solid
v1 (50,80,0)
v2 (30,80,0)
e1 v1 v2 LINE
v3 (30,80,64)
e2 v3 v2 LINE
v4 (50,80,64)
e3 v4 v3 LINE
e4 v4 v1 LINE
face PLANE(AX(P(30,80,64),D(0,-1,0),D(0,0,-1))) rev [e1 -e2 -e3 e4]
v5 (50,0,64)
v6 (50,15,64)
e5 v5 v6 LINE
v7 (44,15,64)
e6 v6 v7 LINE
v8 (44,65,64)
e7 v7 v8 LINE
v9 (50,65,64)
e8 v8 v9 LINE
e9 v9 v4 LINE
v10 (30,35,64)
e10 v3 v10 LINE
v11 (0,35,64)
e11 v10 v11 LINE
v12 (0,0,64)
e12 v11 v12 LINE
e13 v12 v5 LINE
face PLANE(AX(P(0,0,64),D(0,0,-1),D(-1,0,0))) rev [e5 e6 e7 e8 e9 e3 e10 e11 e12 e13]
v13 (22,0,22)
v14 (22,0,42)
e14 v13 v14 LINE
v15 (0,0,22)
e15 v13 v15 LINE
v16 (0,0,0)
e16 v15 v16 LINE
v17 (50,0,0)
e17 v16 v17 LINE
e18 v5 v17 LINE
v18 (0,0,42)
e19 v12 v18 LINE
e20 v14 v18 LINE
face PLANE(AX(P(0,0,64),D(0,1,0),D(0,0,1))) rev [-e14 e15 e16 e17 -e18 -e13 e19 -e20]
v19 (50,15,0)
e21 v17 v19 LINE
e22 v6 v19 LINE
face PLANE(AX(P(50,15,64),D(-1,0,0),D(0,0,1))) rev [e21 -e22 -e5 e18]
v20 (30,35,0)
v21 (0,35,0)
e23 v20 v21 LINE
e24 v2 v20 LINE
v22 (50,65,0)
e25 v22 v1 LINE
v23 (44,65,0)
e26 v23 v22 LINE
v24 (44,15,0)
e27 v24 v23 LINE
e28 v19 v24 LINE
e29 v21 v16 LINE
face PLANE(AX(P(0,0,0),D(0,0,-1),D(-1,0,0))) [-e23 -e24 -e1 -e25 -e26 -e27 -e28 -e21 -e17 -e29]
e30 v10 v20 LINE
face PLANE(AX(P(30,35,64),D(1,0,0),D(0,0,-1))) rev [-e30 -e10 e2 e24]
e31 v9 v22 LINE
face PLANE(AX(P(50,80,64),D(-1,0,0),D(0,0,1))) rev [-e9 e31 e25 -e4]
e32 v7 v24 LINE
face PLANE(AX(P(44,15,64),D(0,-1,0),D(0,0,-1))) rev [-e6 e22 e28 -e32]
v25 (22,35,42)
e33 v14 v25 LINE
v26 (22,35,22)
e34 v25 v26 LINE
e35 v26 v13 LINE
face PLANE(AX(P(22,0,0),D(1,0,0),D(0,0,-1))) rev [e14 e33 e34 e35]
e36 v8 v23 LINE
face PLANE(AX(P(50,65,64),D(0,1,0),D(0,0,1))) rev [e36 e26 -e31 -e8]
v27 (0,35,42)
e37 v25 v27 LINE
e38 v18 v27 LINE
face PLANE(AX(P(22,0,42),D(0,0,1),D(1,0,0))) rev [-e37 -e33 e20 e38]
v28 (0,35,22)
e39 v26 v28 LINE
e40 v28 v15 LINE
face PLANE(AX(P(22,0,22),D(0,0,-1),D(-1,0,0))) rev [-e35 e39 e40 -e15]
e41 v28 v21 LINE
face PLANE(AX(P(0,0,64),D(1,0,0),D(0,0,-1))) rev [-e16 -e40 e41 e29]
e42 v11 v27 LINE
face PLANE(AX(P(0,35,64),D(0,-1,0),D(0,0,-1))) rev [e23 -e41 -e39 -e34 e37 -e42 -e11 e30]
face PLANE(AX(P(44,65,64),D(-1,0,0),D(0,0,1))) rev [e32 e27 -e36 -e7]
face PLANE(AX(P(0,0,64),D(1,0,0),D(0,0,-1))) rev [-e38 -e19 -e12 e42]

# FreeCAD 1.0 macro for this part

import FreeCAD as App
import Part
import Sketcher
Q = App.Units.Quantity


def add_polygon(sketch, points):
    """Adds a closed chain of lines whose ends are joined by coincident constraints."""
    first, n = sketch.GeometryCount, len(points)
    for a, b in zip(points, points[1:] + points[:1]):
        sketch.addGeometry(Part.LineSegment(App.Vector(*a, 0), App.Vector(*b, 0)), False)
    for i in range(n):
        sketch.addConstraint(Sketcher.Constraint("Coincident", first + i, 2, first + (i + 1) % n, 1))

doc = App.newDocument("Part")
body = doc.addObject("PartDesign::Body", "Body")

# Sketch on XY plane
sketch1 = body.newObject("Sketcher::SketchObject", "Sketch")
sketch1.AttachmentSupport = (doc.getObject("XY_Plane"), [""])
sketch1.MapMode = "FlatFace"
add_polygon(sketch1, [(0, 0), (50, 0), (50, 15), (44, 15), (44, 65), (50, 65), (50, 80), (30, 80), (30, 35), (0, 35)])  # lines 0-9
sketch1.addConstraint(Sketcher.Constraint("Horizontal", 0))
sketch1.addConstraint(Sketcher.Constraint("Vertical", 1))
sketch1.addConstraint(Sketcher.Constraint("Horizontal", 2))
sketch1.addConstraint(Sketcher.Constraint("Vertical", 3))
sketch1.addConstraint(Sketcher.Constraint("Horizontal", 4))
sketch1.addConstraint(Sketcher.Constraint("Vertical", 5))
sketch1.addConstraint(Sketcher.Constraint("Horizontal", 6))
sketch1.addConstraint(Sketcher.Constraint("Vertical", 7))
sketch1.addConstraint(Sketcher.Constraint("Horizontal", 8))
sketch1.addConstraint(Sketcher.Constraint("Vertical", 9))
sketch1.addConstraint(Sketcher.Constraint("Coincident", 9, 2, -1, 1))
sketch1.addConstraint(Sketcher.Constraint("Vertical", 1, 2, 4, 2))
sketch1.addConstraint(Sketcher.Constraint("Equal", 0, 3))
sketch1.addConstraint(Sketcher.Constraint("Equal", 1, 5))
sketch1.addConstraint(Sketcher.Constraint("DistanceX", 0, 1, 0, 2, Q("50 mm")))
sketch1.addConstraint(Sketcher.Constraint("DistanceX", 2, 2, 2, 1, Q("6 mm")))
sketch1.addConstraint(Sketcher.Constraint("DistanceX", 6, 2, 6, 1, Q("20 mm")))
sketch1.addConstraint(Sketcher.Constraint("DistanceY", 1, 1, 1, 2, Q("15 mm")))
sketch1.addConstraint(Sketcher.Constraint("DistanceY", 7, 2, 7, 1, Q("45 mm")))
pad1 = body.newObject("PartDesign::Pad", "Pad")
pad1.Profile = sketch1
pad1.Length = 64

# Sketch on YZ plane
sketch2 = body.newObject("Sketcher::SketchObject", "Sketch001")
sketch2.AttachmentSupport = (doc.getObject("YZ_Plane"), [""])
sketch2.MapMode = "FlatFace"
add_polygon(sketch2, [(35, 22), (0, 22), (0, 42), (35, 42)])  # lines 0-3
sketch2.addConstraint(Sketcher.Constraint("Horizontal", 0))
sketch2.addConstraint(Sketcher.Constraint("Vertical", 1))
sketch2.addConstraint(Sketcher.Constraint("Horizontal", 2))
sketch2.addConstraint(Sketcher.Constraint("Vertical", 3))
sketch2.addConstraint(Sketcher.Constraint("PointOnObject", 0, 2, -2))
sketch2.addConstraint(Sketcher.Constraint("DistanceX", 0, 2, 0, 1, Q("35 mm")))
sketch2.addConstraint(Sketcher.Constraint("DistanceY", 1, 1, 1, 2, Q("20 mm")))
sketch2.addConstraint(Sketcher.Constraint("DistanceY", -1, 1, 0, 2, Q("22 mm")))
pocket1 = body.newObject("PartDesign::Pocket", "Pocket")
pocket1.Profile = sketch2
pocket1.Length = 22
pocket1.Reversed = True

doc.recompute()
